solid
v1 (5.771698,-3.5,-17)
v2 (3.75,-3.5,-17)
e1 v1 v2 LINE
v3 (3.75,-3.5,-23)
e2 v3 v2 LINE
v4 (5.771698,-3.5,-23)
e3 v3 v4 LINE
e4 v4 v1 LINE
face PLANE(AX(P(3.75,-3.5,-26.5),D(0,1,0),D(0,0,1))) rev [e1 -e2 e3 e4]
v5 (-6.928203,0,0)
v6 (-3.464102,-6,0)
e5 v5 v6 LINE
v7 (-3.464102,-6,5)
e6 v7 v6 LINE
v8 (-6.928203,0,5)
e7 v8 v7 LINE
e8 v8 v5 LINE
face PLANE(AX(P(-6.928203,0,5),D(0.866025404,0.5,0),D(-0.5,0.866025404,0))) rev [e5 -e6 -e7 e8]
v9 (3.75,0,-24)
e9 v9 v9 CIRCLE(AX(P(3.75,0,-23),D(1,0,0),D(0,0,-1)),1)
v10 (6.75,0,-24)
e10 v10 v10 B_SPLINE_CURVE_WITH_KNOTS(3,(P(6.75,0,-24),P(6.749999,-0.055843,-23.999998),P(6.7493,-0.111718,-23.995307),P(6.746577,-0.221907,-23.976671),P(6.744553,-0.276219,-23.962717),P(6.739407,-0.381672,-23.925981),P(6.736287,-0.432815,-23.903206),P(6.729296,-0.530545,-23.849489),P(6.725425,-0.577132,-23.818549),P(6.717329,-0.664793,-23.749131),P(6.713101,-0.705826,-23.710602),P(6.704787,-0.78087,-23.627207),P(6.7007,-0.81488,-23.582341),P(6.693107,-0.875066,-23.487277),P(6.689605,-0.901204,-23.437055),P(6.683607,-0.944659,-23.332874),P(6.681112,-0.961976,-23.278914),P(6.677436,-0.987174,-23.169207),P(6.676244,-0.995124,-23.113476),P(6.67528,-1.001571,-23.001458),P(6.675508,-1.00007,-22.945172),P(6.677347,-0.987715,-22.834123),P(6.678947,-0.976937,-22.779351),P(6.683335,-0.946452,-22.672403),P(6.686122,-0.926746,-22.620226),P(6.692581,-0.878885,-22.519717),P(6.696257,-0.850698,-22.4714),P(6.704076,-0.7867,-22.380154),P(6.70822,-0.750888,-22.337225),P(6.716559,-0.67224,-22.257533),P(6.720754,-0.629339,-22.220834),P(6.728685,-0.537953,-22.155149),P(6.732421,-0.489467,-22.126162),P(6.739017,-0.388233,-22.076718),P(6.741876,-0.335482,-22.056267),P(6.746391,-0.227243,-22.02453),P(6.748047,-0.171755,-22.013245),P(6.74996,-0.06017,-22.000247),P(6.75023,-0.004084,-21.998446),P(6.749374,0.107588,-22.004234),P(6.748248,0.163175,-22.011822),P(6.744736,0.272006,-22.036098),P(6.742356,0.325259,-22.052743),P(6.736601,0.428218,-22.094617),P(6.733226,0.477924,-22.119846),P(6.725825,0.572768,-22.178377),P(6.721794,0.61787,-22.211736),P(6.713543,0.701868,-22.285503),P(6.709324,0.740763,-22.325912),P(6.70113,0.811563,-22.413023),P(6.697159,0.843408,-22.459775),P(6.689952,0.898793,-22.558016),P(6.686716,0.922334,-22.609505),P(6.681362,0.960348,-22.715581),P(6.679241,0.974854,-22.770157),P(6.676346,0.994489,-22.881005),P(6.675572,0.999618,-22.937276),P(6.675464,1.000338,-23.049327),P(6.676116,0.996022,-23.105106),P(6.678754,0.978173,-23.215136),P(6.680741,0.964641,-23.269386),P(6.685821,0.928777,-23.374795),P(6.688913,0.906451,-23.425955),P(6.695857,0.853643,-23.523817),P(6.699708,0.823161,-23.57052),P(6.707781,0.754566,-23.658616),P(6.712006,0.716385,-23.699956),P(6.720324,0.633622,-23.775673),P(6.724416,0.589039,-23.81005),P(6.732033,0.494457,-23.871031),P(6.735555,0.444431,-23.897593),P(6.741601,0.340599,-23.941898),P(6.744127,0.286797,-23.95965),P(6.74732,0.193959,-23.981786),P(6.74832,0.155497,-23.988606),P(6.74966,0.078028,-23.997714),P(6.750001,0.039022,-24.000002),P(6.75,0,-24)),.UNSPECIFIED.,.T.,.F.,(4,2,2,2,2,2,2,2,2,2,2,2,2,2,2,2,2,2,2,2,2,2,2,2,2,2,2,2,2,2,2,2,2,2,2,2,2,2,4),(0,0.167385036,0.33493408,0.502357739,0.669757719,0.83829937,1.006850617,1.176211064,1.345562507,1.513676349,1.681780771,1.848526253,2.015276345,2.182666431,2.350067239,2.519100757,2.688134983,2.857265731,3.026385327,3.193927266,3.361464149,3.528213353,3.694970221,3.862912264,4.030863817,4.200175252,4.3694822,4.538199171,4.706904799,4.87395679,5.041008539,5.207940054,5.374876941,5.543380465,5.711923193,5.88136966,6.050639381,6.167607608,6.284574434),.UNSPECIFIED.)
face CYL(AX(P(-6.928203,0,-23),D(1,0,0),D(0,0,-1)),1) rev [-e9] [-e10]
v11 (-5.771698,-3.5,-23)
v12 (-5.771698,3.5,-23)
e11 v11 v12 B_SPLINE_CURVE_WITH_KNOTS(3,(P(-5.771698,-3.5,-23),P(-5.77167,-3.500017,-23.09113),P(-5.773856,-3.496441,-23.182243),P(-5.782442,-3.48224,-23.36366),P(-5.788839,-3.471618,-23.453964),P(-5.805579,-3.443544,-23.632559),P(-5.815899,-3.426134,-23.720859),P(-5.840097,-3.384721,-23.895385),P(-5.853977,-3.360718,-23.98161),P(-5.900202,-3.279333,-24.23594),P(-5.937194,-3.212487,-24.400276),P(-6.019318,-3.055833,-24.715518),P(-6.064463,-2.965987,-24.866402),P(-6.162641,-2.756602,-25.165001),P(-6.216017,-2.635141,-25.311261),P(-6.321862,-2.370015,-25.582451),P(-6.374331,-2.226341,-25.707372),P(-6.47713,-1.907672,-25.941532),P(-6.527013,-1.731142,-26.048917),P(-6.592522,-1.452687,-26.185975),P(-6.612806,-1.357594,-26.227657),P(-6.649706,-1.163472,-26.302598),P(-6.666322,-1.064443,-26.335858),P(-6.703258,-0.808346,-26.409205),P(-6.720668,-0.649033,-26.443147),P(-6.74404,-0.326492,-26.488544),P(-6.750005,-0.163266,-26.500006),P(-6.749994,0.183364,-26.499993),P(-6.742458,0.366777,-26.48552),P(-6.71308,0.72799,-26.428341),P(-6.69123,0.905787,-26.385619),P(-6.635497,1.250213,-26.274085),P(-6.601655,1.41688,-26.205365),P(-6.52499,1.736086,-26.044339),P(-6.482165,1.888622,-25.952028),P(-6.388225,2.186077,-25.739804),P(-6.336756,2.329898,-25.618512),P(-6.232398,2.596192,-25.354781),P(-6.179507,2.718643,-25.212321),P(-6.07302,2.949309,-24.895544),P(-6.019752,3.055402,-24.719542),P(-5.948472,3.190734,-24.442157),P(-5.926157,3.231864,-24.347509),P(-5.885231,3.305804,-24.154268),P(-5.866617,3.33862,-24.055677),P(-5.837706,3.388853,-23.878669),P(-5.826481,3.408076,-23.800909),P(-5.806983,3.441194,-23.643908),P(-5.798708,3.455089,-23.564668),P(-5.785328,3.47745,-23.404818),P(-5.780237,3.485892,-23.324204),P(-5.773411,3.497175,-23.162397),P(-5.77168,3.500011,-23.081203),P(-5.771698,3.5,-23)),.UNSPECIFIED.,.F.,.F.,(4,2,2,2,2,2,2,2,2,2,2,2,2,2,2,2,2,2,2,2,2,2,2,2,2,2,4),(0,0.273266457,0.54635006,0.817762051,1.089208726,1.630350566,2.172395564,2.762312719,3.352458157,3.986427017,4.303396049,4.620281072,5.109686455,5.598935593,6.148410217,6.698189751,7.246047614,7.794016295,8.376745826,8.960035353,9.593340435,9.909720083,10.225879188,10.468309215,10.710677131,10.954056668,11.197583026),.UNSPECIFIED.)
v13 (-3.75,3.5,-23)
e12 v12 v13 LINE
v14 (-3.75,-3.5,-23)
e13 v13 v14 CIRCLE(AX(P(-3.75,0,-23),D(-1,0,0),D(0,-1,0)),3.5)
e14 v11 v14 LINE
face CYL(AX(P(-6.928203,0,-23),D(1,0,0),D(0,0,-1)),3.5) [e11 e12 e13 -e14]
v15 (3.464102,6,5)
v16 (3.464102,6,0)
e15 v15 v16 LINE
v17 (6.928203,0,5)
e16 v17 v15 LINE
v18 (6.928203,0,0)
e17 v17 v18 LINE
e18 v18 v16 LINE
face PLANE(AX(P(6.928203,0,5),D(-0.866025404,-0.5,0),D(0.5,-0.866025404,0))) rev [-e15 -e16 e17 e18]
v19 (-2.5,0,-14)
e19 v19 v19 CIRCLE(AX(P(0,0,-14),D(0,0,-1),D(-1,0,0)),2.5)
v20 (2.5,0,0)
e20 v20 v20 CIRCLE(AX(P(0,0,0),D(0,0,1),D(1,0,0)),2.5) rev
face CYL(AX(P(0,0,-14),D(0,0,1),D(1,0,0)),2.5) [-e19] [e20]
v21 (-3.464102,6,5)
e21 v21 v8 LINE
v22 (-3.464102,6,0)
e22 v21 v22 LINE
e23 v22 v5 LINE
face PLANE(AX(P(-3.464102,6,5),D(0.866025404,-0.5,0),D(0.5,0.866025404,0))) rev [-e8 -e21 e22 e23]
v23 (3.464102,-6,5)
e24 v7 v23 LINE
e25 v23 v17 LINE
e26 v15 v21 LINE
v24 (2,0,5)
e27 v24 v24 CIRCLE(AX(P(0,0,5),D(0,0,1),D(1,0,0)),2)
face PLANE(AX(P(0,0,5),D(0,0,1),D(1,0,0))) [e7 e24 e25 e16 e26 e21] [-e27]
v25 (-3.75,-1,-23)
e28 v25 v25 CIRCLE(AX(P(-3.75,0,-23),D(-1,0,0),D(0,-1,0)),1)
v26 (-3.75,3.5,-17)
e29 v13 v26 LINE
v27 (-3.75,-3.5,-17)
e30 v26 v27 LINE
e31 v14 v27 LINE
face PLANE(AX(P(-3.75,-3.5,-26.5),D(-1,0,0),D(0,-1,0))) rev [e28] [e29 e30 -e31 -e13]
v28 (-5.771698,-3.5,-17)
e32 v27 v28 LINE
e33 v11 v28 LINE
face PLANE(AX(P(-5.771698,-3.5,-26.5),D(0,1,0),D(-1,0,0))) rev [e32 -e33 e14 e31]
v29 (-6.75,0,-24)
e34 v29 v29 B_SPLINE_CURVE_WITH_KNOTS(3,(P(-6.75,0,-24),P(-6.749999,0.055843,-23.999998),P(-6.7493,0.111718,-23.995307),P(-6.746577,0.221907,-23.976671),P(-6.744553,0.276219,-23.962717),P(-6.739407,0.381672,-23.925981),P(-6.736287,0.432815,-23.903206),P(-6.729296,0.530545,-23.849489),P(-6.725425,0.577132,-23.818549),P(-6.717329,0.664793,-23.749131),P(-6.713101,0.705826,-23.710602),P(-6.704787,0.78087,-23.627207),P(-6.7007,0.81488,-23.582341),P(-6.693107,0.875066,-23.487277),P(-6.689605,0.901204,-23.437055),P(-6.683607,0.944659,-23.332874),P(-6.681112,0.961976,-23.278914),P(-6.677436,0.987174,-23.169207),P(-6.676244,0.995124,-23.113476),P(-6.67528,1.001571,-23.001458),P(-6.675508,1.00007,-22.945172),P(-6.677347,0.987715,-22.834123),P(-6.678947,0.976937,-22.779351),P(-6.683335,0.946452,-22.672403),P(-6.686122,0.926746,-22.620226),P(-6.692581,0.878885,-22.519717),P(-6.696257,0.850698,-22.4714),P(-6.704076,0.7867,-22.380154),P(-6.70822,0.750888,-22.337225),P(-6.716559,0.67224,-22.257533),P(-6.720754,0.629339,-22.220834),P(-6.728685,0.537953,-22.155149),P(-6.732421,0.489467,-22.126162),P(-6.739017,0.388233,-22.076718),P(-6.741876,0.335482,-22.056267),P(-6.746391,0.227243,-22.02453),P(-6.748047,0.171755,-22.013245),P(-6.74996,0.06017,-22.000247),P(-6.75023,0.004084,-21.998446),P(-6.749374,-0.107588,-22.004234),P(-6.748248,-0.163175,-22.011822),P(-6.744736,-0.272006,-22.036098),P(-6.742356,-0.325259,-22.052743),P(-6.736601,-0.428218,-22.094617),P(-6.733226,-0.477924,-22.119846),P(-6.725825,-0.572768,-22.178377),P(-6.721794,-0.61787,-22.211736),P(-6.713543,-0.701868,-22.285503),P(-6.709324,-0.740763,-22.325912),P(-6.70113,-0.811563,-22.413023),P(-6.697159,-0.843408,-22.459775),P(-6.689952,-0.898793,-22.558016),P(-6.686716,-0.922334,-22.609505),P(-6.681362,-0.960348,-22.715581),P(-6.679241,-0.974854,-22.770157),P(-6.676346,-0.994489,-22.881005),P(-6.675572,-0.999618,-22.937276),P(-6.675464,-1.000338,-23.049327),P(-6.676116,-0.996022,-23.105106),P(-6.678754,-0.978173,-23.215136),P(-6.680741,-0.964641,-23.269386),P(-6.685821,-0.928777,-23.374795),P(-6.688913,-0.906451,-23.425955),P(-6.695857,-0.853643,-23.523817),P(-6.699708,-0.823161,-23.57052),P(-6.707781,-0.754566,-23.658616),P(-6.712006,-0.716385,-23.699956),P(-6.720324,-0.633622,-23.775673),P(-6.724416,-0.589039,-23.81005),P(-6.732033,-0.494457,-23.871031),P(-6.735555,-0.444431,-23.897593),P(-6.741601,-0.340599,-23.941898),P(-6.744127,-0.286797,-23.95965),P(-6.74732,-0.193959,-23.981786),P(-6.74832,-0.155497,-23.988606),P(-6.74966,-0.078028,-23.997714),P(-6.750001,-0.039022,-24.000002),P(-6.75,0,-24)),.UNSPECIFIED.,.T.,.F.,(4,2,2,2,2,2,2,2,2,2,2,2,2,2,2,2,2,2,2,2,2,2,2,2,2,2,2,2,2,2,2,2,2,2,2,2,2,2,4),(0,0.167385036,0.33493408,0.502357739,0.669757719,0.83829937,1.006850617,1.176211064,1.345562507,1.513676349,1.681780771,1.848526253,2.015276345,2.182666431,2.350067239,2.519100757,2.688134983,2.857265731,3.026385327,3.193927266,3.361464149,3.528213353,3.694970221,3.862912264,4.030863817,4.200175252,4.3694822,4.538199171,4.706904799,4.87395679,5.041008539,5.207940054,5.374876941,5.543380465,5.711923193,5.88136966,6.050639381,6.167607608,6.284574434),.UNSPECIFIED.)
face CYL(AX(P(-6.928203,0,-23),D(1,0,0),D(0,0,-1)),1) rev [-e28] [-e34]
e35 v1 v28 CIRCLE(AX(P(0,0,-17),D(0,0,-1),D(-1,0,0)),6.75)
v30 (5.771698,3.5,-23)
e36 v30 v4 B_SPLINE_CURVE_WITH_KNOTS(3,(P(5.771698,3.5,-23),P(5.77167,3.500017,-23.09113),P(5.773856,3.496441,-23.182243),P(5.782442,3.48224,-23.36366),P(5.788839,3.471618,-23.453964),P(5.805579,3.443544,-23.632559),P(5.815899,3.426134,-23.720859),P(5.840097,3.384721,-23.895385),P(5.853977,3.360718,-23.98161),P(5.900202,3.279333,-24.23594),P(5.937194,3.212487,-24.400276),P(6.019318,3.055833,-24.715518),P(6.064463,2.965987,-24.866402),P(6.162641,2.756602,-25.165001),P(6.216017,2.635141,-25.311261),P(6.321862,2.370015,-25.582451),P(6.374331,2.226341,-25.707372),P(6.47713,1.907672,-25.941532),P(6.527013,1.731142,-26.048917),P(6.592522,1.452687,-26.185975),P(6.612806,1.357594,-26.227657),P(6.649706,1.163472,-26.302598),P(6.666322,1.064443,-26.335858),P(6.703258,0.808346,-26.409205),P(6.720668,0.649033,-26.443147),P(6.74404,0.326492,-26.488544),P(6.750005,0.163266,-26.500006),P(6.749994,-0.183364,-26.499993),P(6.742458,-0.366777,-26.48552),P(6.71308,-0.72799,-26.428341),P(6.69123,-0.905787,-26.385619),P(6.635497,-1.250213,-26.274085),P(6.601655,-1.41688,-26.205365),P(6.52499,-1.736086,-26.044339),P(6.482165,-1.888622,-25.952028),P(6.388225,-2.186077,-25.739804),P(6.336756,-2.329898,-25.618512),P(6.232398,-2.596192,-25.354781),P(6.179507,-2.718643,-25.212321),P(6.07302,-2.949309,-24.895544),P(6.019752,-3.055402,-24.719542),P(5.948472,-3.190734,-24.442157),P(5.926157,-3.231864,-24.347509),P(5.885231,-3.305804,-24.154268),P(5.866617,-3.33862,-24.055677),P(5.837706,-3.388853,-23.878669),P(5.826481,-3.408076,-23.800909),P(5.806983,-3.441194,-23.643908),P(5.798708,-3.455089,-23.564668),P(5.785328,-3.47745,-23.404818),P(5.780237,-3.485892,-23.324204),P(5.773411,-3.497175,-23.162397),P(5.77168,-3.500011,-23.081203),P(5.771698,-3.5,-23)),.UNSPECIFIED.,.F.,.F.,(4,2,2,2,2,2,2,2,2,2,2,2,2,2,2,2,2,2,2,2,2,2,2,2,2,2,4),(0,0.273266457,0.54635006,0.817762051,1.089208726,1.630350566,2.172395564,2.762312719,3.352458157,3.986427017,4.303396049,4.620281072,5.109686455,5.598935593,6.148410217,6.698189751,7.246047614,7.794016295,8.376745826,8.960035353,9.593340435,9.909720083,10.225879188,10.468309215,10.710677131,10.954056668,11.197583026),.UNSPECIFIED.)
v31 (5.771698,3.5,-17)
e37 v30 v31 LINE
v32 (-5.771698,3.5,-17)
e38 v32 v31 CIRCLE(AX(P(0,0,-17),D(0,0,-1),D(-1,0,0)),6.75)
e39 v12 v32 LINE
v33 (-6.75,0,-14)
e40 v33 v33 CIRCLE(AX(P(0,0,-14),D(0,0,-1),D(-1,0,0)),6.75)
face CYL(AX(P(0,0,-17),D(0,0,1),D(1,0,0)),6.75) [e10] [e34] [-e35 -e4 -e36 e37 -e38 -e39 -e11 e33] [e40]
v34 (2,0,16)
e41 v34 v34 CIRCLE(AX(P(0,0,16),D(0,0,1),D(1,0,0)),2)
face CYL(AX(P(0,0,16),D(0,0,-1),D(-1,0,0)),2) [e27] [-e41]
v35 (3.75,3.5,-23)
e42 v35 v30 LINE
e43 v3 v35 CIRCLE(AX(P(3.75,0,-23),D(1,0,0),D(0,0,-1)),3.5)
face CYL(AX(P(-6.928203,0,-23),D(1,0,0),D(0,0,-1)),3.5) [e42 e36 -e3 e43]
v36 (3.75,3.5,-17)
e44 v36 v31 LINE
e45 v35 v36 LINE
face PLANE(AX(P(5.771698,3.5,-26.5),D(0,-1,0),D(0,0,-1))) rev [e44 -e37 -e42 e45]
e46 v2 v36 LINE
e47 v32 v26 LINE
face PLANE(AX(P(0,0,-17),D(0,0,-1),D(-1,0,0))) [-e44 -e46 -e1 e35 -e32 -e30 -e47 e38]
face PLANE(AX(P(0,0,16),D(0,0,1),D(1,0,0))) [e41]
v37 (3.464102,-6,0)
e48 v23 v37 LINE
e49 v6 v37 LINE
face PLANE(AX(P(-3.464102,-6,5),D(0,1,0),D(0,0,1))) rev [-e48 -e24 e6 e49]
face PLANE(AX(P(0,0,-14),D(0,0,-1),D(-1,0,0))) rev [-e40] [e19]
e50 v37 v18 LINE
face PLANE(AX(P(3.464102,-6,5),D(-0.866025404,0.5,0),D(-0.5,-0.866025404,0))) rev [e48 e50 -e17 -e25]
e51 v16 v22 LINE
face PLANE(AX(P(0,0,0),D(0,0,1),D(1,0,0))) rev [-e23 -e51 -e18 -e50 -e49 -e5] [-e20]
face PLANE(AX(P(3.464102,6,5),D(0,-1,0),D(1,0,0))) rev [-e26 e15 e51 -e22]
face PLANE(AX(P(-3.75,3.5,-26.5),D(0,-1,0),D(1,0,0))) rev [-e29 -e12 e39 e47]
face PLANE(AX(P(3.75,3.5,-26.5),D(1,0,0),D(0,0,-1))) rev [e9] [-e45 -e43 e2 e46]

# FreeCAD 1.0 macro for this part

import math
import FreeCAD as App
import Part
import Sketcher

V = App.Vector
Q = App.Units.Quantity

doc = App.newDocument("Part")
body = doc.addObject("PartDesign::Body", "Body")

# Sketch on XY plane
sketch1 = doc.addObject("Sketcher::SketchObject", "Sketch")
body.addObject(sketch1)
sketch1.AttachmentSupport = (doc.XY_Plane, [""])
sketch1.MapMode = "FlatFace"
sketch1.addGeometry(Part.LineSegment(V(3, -6, 0), V(7, 0, 0)), False)
sketch1.addGeometry(Part.LineSegment(V(7, 0, 0), V(3, 6, 0)), False)
sketch1.addGeometry(Part.LineSegment(V(3, 6, 0), V(-3, 6, 0)), False)
sketch1.addGeometry(Part.LineSegment(V(-3, 6, 0), V(-7, 0, 0)), False)
sketch1.addGeometry(Part.LineSegment(V(-7, 0, 0), V(-3, -6, 0)), False)
sketch1.addGeometry(Part.LineSegment(V(-3, -6, 0), V(3, -6, 0)), False)
sketch1.addConstraint(Sketcher.Constraint("Coincident", 0, 2, 1, 1))
sketch1.addConstraint(Sketcher.Constraint("Coincident", 1, 2, 2, 1))
sketch1.addConstraint(Sketcher.Constraint("Coincident", 2, 2, 3, 1))
sketch1.addConstraint(Sketcher.Constraint("Coincident", 3, 2, 4, 1))
sketch1.addConstraint(Sketcher.Constraint("Coincident", 4, 2, 5, 1))
sketch1.addConstraint(Sketcher.Constraint("Coincident", 5, 2, 0, 1))
sketch1.addConstraint(Sketcher.Constraint("Horizontal", 2))
sketch1.addConstraint(Sketcher.Constraint("Horizontal", 5))
sketch1.addConstraint(Sketcher.Constraint("Symmetric", 0, 2, 3, 2, -1, 1))
sketch1.addConstraint(Sketcher.Constraint("Symmetric", 1, 2, 4, 2, -1, 1))
sketch1.addConstraint(Sketcher.Constraint("PointOnObject", 0, 2, -1))
sketch1.addConstraint(Sketcher.Constraint("Parallel", 0, 3))
sketch1.addConstraint(Sketcher.Constraint("Vertical", 2, 2, 4, 2))
sketch1.addConstraint(Sketcher.Constraint("Angle", 0, Q("60.000004 deg")))
sketch1.addConstraint(Sketcher.Constraint("DistanceY", -1, 1, 1, 2, 6.0))
sketch1.addConstraint(Sketcher.Constraint("DistanceX", -1, 1, 1, 2, 3.464102))
pad1 = doc.addObject("PartDesign::Pad", "Pad")
body.addObject(pad1)
pad1.Profile = sketch1
pad1.Length = 5

# Sketch on XY plane
sketch2 = doc.addObject("Sketcher::SketchObject", "Sketch001")
body.addObject(sketch2)
sketch2.AttachmentSupport = (doc.XY_Plane, [""])
sketch2.MapMode = "FlatFace"
sketch2.AttachmentOffset = App.Placement(V(0, 0, 5), App.Rotation())
sketch2.addGeometry(Part.Circle(V(0, 0, 0), V(0, 0, 1), 2), False)
sketch2.addConstraint(Sketcher.Constraint("Coincident", 0, 3, -1, 1))
sketch2.addConstraint(Sketcher.Constraint("Diameter", 0, 4.0))
pad2 = doc.addObject("PartDesign::Pad", "Pad001")
body.addObject(pad2)
pad2.Profile = sketch2
pad2.Length = 11

# Sketch on XY plane
sketch3 = doc.addObject("Sketcher::SketchObject", "Sketch002")
body.addObject(sketch3)
sketch3.AttachmentSupport = (doc.XY_Plane, [""])
sketch3.MapMode = "FlatFace"
sketch3.addGeometry(Part.Circle(V(0, 0, 0), V(0, 0, 1), 2.5), False)
sketch3.addConstraint(Sketcher.Constraint("Coincident", 0, 3, -1, 1))
sketch3.addConstraint(Sketcher.Constraint("Diameter", 0, 5.0))
pad3 = doc.addObject("PartDesign::Pad", "Pad002")
body.addObject(pad3)
pad3.Profile = sketch3
pad3.Length = 14
pad3.Reversed = True

# Sketch on XY plane
sketch4 = doc.addObject("Sketcher::SketchObject", "Sketch003")
body.addObject(sketch4)
sketch4.AttachmentSupport = (doc.XY_Plane, [""])
sketch4.MapMode = "FlatFace"
sketch4.AttachmentOffset = App.Placement(V(0, 0, -14), App.Rotation())
sketch4.addGeometry(Part.Circle(V(0, 0, 0), V(0, 0, 1), 7), False)
sketch4.addConstraint(Sketcher.Constraint("Coincident", 0, 3, -1, 1))
sketch4.addConstraint(Sketcher.Constraint("Diameter", 0, 13.5))
pad4 = doc.addObject("PartDesign::Pad", "Pad003")
body.addObject(pad4)
pad4.Profile = sketch4
pad4.Length = 3
pad4.Reversed = True

# Sketch on XY plane
sketch5 = doc.addObject("Sketcher::SketchObject", "Sketch004")
body.addObject(sketch5)
sketch5.AttachmentSupport = (doc.XY_Plane, [""])
sketch5.MapMode = "FlatFace"
sketch5.AttachmentOffset = App.Placement(V(0, 0, -17), App.Rotation())
sketch5.addGeometry(Part.LineSegment(V(3.8, 3.5, 0), V(5.8, 3.5, 0)), False)
sketch5.addGeometry(Part.ArcOfCircle(Part.Circle(V(0, 0, 0), V(0, 0, 1), 6.7), math.radians(-31), math.radians(31)), False)
sketch5.addGeometry(Part.LineSegment(V(5.8, -3.5, 0), V(3.8, -3.5, 0)), False)
sketch5.addGeometry(Part.LineSegment(V(3.8, -3.5, 0), V(3.8, 3.5, 0)), False)
sketch5.addGeometry(Part.LineSegment(V(-3.8, 3.5, 0), V(-3.8, -3.5, 0)), False)
sketch5.addGeometry(Part.LineSegment(V(-3.8, -3.5, 0), V(-5.8, -3.5, 0)), False)
sketch5.addGeometry(Part.ArcOfCircle(Part.Circle(V(0, 0, 0), V(0, 0, 1), 6.7), math.radians(149), math.radians(211)), False)
sketch5.addGeometry(Part.LineSegment(V(-5.8, 3.5, 0), V(-3.8, 3.5, 0)), False)
sketch5.addConstraint(Sketcher.Constraint("Coincident", 0, 2, 1, 2))
sketch5.addConstraint(Sketcher.Constraint("Coincident", 1, 1, 2, 1))
sketch5.addConstraint(Sketcher.Constraint("Coincident", 2, 2, 3, 1))
sketch5.addConstraint(Sketcher.Constraint("Coincident", 3, 2, 0, 1))
sketch5.addConstraint(Sketcher.Constraint("Coincident", 4, 2, 5, 1))
sketch5.addConstraint(Sketcher.Constraint("Coincident", 5, 2, 6, 2))
sketch5.addConstraint(Sketcher.Constraint("Coincident", 6, 1, 7, 1))
sketch5.addConstraint(Sketcher.Constraint("Coincident", 7, 2, 4, 1))
sketch5.addConstraint(Sketcher.Constraint("Horizontal", 0))
sketch5.addConstraint(Sketcher.Constraint("Horizontal", 2))
sketch5.addConstraint(Sketcher.Constraint("Vertical", 3))
sketch5.addConstraint(Sketcher.Constraint("Vertical", 4))
sketch5.addConstraint(Sketcher.Constraint("Horizontal", 5))
sketch5.addConstraint(Sketcher.Constraint("Horizontal", 7))
sketch5.addConstraint(Sketcher.Constraint("Coincident", 1, 3, -1, 1))
sketch5.addConstraint(Sketcher.Constraint("Coincident", 6, 3, -1, 1))
sketch5.addConstraint(Sketcher.Constraint("Equal", 1, 6))
sketch5.addConstraint(Sketcher.Constraint("Symmetric", 3, 2, 4, 2, -1, 1))
sketch5.addConstraint(Sketcher.Constraint("Horizontal", 2, 2, 4, 2))
sketch5.addConstraint(Sketcher.Constraint("Horizontal", 3, 2, 6, 1))
sketch5.addConstraint(Sketcher.Constraint("DistanceY", 3, 1, 3, 2, 7.0))
sketch5.addConstraint(Sketcher.Constraint("Radius", 1, 6.749999))
sketch5.addConstraint(Sketcher.Constraint("DistanceX", 4, 2, 2, 2, 7.5))
pad5 = doc.addObject("PartDesign::Pad", "Pad004")
body.addObject(pad5)
pad5.Profile = sketch5
pad5.Length = 9.5
pad5.Reversed = True

# Sketch on YZ plane
sketch6 = doc.addObject("Sketcher::SketchObject", "Sketch005")
body.addObject(sketch6)
sketch6.AttachmentSupport = (doc.YZ_Plane, [""])
sketch6.MapMode = "FlatFace"
sketch6.addGeometry(Part.LineSegment(V(-3.5, -26.5, 0), V(0, -26.5, 0)), False)
sketch6.addGeometry(Part.ArcOfCircle(Part.Circle(V(0, -23, 0), V(0, 0, 1), 3.5), math.radians(180), math.radians(270)), False)
sketch6.addGeometry(Part.LineSegment(V(-3.5, -23, 0), V(-3.5, -26.5, 0)), False)
sketch6.addGeometry(Part.LineSegment(V(3.5, -26.5, 0), V(3.5, -23, 0)), False)
sketch6.addGeometry(Part.ArcOfCircle(Part.Circle(V(0, -23, 0), V(0, 0, 1), 3.5), math.radians(-90), math.radians(0)), False)
sketch6.addGeometry(Part.LineSegment(V(0, -26.5, 0), V(3.5, -26.5, 0)), False)
sketch6.addConstraint(Sketcher.Constraint("Tangent", 0, 2, 1, 2))
sketch6.addConstraint(Sketcher.Constraint("Tangent", 1, 1, 2, 1))
sketch6.addConstraint(Sketcher.Constraint("Coincident", 2, 2, 0, 1))
sketch6.addConstraint(Sketcher.Constraint("Tangent", 3, 2, 4, 2))
sketch6.addConstraint(Sketcher.Constraint("Tangent", 4, 1, 5, 1))
sketch6.addConstraint(Sketcher.Constraint("Coincident", 5, 2, 3, 1))
sketch6.addConstraint(Sketcher.Constraint("Horizontal", 0))
sketch6.addConstraint(Sketcher.Constraint("Vertical", 2))
sketch6.addConstraint(Sketcher.Constraint("Vertical", 3))
sketch6.addConstraint(Sketcher.Constraint("Horizontal", 5))
sketch6.addConstraint(Sketcher.Constraint("Coincident", 4, 3, 1, 3))
sketch6.addConstraint(Sketcher.Constraint("Equal", 1, 4))
sketch6.addConstraint(Sketcher.Constraint("PointOnObject", 1, 3, -2))
sketch6.addConstraint(Sketcher.Constraint("Radius", 1, 3.499999))
sketch6.addConstraint(Sketcher.Constraint("DistanceY", 1, 3, -1, 1, 23.000001))
pocket1 = doc.addObject("PartDesign::Pocket", "Pocket")
body.addObject(pocket1)
pocket1.Profile = sketch6
pocket1.Type = "ThroughAll"
pocket1.Midplane = True

# Sketch on YZ plane
sketch7 = doc.addObject("Sketcher::SketchObject", "Sketch006")
body.addObject(sketch7)
sketch7.AttachmentSupport = (doc.YZ_Plane, [""])
sketch7.MapMode = "FlatFace"
sketch7.addGeometry(Part.Circle(V(0, -23, 0), V(0, 0, 1), 1), False)
sketch7.addConstraint(Sketcher.Constraint("PointOnObject", 0, 3, -2))
sketch7.addConstraint(Sketcher.Constraint("Diameter", 0, 2.0))
sketch7.addConstraint(Sketcher.Constraint("DistanceY", 0, 3, -1, 1, 23.0))
pocket2 = doc.addObject("PartDesign::Pocket", "Pocket001")
body.addObject(pocket2)
pocket2.Profile = sketch7
pocket2.Type = "ThroughAll"
pocket2.Midplane = True

doc.recompute()
